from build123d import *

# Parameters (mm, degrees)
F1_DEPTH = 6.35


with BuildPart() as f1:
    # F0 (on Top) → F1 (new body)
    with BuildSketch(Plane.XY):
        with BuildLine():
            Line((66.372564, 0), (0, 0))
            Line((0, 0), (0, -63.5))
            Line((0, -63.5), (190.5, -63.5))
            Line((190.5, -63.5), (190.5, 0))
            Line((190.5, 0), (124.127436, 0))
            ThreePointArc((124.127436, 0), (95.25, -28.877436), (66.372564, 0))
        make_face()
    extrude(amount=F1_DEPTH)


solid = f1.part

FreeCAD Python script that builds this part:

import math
import FreeCAD as App
import Part
import Sketcher
Q = App.Units.Quantity

doc = App.newDocument("Part")
body = doc.addObject("PartDesign::Body", "Body")

# Sketch on XY plane
sketch1 = body.newObject("Sketcher::SketchObject", "Sketch")
sketch1.AttachmentSupport = (doc.getObject("XY_Plane"), [""])
sketch1.MapMode = "FlatFace"
sketch1.addGeometry(Part.LineSegment(App.Vector(66, 0, 0), App.Vector(0, 0, 0)), False)
sketch1.addGeometry(Part.LineSegment(App.Vector(0, 0, 0), App.Vector(0, -64, 0)), False)
sketch1.addGeometry(Part.LineSegment(App.Vector(0, -64, 0), App.Vector(190, -64, 0)), False)
sketch1.addGeometry(Part.LineSegment(App.Vector(190, -64, 0), App.Vector(190, 0, 0)), False)
sketch1.addGeometry(Part.LineSegment(App.Vector(190, 0, 0), App.Vector(124, 0, 0)), False)
sketch1.addGeometry(Part.ArcOfCircle(Part.Circle(App.Vector(95, 0, 0), App.Vector(0, 0, 1), 29), math.radians(180), math.radians(360)), False)
sketch1.addConstraint(Sketcher.Constraint("Coincident", 0, 2, 1, 1))
sketch1.addConstraint(Sketcher.Constraint("Coincident", 1, 2, 2, 1))
sketch1.addConstraint(Sketcher.Constraint("Coincident", 2, 2, 3, 1))
sketch1.addConstraint(Sketcher.Constraint("Coincident", 3, 2, 4, 1))
sketch1.addConstraint(Sketcher.Constraint("Coincident", 4, 2, 5, 2))
sketch1.addConstraint(Sketcher.Constraint("Coincident", 5, 1, 0, 1))
sketch1.addConstraint(Sketcher.Constraint("Horizontal", 0))
sketch1.addConstraint(Sketcher.Constraint("Vertical", 1))
sketch1.addConstraint(Sketcher.Constraint("Horizontal", 2))
sketch1.addConstraint(Sketcher.Constraint("Vertical", 3))
sketch1.addConstraint(Sketcher.Constraint("Horizontal", 4))
sketch1.addConstraint(Sketcher.Constraint("Coincident", 0, 2, -1, 1))
sketch1.addConstraint(Sketcher.Constraint("PointOnObject", 5, 3, -1))
sketch1.addConstraint(Sketcher.Constraint("PointOnObject", 3, 2, -1))
sketch1.addConstraint(Sketcher.Constraint("Equal", 0, 4))
sketch1.addConstraint(Sketcher.Constraint("DistanceX", 2, 1, 2, 2, Q("7.5 in")))
sketch1.addConstraint(Sketcher.Constraint("DistanceY", 1, 2, 1, 1, Q("2.5 in")))
sketch1.addConstraint(Sketcher.Constraint("Radius", 5, 28.877436))
pad1 = body.newObject("PartDesign::Pad", "Pad")
pad1.Profile = sketch1
pad1.Length = Q("0.25 in")

doc.recompute()
